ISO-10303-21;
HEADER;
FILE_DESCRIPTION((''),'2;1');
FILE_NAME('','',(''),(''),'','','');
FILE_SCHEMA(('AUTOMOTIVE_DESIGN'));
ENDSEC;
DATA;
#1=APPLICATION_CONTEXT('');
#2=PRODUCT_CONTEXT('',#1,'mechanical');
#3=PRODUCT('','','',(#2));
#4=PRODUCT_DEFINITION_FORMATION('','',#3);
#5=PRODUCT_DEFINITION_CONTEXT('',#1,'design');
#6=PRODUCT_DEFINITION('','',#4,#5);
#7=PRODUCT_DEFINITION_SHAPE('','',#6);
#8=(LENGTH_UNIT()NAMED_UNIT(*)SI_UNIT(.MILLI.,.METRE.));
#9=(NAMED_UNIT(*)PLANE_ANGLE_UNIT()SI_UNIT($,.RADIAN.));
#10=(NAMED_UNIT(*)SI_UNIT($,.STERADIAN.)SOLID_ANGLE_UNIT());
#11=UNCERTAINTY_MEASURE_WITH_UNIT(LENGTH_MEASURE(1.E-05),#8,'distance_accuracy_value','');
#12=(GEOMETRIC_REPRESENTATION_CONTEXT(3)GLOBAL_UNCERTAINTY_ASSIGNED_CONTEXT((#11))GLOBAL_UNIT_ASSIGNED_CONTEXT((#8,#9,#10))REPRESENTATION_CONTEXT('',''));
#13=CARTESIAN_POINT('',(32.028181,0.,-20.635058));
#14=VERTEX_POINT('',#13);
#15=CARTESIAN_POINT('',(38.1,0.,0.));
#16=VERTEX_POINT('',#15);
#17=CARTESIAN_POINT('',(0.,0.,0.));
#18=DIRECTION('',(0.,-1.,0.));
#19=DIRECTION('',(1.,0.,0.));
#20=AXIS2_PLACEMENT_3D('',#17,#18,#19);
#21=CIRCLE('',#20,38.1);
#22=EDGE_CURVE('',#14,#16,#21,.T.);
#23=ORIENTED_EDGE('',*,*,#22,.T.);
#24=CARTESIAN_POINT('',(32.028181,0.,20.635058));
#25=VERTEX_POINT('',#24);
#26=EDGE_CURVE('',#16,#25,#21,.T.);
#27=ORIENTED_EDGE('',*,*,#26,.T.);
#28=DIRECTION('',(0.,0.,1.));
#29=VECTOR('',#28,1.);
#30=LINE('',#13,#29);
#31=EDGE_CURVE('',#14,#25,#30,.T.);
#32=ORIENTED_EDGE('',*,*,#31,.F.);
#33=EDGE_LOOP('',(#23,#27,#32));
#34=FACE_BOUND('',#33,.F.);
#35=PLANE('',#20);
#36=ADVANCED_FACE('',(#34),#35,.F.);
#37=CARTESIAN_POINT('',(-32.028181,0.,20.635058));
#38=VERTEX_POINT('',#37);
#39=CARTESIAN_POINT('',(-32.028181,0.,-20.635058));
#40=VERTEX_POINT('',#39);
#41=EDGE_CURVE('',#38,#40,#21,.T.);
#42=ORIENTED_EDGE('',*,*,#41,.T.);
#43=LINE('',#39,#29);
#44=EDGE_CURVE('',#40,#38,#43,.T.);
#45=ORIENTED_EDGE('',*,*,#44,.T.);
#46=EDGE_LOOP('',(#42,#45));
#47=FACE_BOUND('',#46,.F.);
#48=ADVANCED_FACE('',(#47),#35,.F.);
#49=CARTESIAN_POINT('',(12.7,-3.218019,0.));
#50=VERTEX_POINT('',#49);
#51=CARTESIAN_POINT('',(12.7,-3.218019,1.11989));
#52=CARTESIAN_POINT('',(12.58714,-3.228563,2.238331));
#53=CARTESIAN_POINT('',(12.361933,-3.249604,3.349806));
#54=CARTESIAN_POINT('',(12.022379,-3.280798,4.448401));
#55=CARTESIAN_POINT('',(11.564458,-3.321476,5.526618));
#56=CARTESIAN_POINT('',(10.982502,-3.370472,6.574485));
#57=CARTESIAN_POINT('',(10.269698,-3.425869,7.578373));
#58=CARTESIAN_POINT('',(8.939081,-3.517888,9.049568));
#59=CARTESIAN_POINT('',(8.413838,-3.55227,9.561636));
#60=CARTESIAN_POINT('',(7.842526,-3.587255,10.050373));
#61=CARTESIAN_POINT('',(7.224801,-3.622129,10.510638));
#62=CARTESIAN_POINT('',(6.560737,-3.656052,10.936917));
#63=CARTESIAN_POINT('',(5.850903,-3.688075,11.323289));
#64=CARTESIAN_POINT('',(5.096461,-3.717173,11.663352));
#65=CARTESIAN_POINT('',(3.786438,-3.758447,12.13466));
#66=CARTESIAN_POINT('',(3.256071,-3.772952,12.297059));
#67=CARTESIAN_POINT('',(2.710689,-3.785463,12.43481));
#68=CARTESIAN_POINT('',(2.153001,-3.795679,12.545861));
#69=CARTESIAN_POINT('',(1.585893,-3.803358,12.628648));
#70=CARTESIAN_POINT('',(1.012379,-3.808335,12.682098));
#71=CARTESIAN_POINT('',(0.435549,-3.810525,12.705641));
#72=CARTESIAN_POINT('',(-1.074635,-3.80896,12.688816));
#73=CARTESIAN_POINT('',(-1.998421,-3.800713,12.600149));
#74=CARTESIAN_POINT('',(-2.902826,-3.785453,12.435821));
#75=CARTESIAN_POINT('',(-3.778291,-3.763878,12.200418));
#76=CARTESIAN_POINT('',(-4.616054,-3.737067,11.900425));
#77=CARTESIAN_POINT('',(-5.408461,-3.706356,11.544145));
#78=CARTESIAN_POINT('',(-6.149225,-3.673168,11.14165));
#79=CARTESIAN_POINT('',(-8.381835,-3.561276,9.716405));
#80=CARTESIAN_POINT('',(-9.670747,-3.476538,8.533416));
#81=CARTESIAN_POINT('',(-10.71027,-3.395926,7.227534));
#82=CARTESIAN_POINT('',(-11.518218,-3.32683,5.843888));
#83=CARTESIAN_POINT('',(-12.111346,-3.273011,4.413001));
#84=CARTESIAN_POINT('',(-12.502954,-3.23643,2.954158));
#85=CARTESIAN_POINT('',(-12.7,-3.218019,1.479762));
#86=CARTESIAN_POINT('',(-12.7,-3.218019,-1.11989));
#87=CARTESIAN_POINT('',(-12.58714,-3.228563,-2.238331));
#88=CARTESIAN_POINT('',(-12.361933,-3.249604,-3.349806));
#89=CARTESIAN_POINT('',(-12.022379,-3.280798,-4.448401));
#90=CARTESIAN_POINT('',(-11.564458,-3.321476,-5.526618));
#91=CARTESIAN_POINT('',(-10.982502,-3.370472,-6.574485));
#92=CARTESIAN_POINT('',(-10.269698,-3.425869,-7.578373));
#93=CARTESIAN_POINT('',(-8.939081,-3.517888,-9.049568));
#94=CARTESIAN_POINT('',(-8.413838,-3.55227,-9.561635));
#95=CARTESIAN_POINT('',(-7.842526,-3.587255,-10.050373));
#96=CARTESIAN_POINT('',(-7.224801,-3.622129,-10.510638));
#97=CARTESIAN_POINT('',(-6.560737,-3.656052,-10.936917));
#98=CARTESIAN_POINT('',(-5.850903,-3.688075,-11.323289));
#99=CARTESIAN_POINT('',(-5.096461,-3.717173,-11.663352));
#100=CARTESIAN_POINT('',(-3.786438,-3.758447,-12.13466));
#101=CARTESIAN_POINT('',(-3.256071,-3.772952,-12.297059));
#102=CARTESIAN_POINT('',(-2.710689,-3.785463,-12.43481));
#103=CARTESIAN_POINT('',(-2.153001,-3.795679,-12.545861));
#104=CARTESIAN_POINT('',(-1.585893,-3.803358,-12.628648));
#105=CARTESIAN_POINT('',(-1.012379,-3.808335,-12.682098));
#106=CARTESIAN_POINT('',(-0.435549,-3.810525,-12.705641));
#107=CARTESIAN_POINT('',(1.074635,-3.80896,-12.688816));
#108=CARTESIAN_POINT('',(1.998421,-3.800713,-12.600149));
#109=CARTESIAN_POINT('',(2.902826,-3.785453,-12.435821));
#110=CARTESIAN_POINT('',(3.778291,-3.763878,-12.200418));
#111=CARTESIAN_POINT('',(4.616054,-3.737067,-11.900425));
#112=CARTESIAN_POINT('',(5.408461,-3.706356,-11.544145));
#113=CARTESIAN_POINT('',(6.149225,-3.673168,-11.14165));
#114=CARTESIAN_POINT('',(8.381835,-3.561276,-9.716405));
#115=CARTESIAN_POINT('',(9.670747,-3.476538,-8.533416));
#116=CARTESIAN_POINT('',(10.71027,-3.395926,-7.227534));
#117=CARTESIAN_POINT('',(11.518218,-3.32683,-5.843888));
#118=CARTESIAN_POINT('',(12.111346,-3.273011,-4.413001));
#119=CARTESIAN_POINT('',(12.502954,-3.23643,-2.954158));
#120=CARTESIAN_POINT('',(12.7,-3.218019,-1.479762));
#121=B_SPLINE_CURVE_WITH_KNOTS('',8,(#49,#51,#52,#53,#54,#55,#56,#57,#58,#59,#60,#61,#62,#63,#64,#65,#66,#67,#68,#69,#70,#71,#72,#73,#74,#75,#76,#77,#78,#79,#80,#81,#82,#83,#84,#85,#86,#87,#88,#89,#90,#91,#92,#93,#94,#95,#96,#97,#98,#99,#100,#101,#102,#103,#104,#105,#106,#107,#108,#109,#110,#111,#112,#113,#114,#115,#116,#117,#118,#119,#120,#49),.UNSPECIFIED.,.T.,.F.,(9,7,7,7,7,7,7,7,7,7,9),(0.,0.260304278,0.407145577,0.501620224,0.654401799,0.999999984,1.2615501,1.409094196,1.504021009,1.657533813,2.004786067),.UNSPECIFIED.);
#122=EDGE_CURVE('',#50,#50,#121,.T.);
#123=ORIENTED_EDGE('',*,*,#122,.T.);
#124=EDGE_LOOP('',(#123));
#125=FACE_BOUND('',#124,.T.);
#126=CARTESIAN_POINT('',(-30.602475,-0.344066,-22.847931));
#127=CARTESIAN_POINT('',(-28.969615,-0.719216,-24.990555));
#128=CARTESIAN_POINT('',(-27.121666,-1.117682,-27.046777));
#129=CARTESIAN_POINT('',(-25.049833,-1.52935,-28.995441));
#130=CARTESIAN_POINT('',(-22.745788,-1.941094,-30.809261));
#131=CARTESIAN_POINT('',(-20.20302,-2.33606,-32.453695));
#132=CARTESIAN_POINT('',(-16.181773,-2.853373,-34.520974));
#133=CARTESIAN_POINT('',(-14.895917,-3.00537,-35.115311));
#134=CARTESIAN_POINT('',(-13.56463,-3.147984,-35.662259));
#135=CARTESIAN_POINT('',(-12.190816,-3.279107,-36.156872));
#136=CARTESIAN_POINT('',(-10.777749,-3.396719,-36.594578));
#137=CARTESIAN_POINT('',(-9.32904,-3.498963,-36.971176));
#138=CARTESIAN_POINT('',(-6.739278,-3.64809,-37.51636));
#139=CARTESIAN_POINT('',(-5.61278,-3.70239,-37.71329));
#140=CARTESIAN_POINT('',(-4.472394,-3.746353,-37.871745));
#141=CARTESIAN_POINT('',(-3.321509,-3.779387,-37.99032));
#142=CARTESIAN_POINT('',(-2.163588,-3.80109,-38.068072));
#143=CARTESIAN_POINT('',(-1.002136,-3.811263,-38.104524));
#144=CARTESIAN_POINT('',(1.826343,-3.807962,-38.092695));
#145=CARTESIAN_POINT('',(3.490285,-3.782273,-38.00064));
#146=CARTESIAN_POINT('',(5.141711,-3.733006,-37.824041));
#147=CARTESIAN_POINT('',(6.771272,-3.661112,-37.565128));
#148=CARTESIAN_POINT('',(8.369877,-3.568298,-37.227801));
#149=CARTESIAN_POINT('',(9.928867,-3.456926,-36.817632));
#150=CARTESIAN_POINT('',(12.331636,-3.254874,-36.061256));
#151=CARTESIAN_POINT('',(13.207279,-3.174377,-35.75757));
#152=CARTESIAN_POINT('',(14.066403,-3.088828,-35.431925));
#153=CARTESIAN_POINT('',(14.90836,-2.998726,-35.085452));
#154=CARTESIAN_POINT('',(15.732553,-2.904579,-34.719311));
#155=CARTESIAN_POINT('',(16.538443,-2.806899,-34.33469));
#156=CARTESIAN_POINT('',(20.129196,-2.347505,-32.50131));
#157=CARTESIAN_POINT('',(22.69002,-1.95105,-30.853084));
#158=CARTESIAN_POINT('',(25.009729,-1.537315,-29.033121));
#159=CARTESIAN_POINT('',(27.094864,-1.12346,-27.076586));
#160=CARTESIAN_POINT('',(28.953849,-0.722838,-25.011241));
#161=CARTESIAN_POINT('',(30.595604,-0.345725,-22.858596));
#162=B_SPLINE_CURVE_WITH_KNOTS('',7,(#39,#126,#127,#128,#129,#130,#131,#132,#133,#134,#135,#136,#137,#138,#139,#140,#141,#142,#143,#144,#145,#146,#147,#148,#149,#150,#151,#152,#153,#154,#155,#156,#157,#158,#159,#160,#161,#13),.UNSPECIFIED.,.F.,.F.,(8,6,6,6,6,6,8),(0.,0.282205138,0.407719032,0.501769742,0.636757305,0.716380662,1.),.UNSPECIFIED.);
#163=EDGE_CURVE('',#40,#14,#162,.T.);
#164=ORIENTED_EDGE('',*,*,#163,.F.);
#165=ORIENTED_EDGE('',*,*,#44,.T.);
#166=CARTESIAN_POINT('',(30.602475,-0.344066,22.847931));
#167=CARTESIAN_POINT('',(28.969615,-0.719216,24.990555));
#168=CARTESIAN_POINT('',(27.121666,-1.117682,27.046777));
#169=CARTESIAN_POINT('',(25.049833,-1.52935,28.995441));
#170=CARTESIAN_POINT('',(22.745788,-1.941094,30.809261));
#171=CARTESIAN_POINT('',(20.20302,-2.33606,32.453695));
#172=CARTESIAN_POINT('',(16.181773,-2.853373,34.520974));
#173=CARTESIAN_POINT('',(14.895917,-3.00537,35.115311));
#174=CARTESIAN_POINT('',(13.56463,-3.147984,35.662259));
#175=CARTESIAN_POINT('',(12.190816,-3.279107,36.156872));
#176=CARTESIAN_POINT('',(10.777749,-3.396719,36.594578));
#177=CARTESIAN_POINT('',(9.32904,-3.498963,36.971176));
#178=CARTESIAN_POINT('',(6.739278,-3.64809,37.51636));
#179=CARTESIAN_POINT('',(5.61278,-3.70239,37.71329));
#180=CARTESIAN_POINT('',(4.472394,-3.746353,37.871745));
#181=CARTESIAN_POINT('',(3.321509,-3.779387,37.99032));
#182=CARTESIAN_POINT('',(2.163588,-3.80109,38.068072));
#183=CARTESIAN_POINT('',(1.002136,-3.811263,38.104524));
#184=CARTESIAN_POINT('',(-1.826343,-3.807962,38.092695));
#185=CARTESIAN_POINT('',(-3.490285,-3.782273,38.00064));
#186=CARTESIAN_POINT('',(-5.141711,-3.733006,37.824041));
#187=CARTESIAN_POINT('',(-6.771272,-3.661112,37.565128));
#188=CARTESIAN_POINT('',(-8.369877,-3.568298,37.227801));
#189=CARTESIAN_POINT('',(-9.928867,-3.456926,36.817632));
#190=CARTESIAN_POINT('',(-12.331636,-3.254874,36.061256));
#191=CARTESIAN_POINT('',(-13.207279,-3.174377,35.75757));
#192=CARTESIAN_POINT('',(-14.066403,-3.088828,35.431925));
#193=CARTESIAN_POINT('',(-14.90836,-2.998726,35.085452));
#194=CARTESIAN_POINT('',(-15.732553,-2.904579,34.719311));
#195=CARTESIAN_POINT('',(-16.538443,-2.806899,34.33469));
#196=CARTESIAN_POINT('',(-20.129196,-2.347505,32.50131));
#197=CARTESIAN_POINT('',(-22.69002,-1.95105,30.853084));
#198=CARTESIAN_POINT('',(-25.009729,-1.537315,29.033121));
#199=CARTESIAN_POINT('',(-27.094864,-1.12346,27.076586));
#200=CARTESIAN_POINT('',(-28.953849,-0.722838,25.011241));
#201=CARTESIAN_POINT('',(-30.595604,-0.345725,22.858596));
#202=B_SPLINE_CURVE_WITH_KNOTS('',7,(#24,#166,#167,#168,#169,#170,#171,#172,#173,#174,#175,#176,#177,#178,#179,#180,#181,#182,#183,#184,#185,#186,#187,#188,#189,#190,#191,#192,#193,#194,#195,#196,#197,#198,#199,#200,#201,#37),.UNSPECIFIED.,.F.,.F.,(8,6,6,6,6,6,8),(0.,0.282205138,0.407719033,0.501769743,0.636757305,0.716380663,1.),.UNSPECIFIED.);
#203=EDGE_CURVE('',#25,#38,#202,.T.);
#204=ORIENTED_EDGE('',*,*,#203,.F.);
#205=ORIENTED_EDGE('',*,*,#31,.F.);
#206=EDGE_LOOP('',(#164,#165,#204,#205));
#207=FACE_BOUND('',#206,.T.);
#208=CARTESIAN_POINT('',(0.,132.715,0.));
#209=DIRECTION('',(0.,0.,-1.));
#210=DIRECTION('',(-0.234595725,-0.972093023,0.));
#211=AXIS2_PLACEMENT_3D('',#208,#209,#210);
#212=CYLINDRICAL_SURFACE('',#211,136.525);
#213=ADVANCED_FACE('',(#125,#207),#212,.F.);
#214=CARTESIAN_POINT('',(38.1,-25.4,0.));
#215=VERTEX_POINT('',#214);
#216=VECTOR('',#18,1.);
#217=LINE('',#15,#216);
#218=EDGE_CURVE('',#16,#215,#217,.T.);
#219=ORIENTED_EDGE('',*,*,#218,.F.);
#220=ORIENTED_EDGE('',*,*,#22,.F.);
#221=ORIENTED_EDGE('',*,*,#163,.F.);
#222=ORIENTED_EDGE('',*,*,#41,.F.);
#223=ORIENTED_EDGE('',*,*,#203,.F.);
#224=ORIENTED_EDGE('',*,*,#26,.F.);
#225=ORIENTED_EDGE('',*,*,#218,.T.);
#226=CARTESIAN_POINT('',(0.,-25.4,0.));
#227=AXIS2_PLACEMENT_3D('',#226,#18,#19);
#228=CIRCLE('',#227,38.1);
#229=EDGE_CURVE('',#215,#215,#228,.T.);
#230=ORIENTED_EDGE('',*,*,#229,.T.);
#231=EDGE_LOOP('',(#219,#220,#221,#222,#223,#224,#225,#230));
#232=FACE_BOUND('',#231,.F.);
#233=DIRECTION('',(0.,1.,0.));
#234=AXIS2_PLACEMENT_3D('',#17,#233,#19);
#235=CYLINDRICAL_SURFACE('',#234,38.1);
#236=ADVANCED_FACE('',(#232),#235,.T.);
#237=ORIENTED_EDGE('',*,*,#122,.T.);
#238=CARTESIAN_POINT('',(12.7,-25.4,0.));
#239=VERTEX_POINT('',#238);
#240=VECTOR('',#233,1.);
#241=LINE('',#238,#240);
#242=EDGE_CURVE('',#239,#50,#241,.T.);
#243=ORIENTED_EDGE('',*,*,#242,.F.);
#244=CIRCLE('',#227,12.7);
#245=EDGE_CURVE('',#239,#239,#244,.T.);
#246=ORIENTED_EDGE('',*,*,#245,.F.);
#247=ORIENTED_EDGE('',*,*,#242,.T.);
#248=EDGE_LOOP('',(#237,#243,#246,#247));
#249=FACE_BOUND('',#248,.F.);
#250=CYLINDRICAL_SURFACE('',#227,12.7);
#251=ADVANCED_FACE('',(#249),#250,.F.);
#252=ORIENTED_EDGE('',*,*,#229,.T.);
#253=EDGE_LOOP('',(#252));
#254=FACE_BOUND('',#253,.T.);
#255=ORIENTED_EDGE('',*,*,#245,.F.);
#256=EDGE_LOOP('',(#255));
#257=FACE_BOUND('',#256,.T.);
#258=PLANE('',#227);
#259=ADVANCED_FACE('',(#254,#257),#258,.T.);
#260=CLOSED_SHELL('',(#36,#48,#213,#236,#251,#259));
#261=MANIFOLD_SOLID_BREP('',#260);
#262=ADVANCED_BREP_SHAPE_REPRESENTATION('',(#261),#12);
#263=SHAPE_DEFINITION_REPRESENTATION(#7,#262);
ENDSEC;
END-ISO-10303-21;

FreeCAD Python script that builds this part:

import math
import FreeCAD as App
import Part
import Sketcher
Q = App.Units.Quantity

doc = App.newDocument("Part")
body = doc.addObject("PartDesign::Body", "Body")

sketch1 = body.newObject("Sketcher::SketchObject", "Sketch")
sketch1.AttachmentSupport = (doc.getObject("XZ_Plane"), [""])
sketch1.MapMode = "FlatFace"
sketch1.addGeometry(Part.Circle(App.Vector(0, 0, 0), App.Vector(0, 0, 1), 38), False)
sketch1.addConstraint([
    Sketcher.Constraint("Coincident", 0, 3, -1, 1),
    Sketcher.Constraint("Diameter", 0, Q("3 in")),
])
pad1 = body.newObject("PartDesign::Pad", "Pad")
pad1.Profile = sketch1
pad1.Length = Q("1 in")

sketch2 = body.newObject("Sketcher::SketchObject", "Sketch001")
sketch2.AttachmentSupport = (doc.getObject("XZ_Plane"), [""])
sketch2.MapMode = "FlatFace"
sketch2.AttachmentOffset = App.Placement(App.Vector(0, 0, 1 * 25.4), App.Rotation())
sketch2.addGeometry(Part.Circle(App.Vector(0, 0, 0), App.Vector(0, 0, 1), 13), False)
sketch2.addConstraint([
    Sketcher.Constraint("Coincident", 0, 3, -1, 1),
    Sketcher.Constraint("Diameter", 0, Q("1 in")),
])
pocket1 = body.newObject("PartDesign::Pocket", "Pocket")
pocket1.Profile = sketch2
pocket1.Type = "ThroughAll"

sketch3 = body.newObject("Sketcher::SketchObject", "Sketch002")
sketch3.AttachmentSupport = (doc.getObject("XY_Plane"), [""])
sketch3.MapMode = "FlatFace"
sketch3.addGeometry([
    Part.LineSegment(App.Vector(32, 0, 0), App.Vector(-32, 0, 0)),
    Part.ArcOfCircle(Part.Circle(App.Vector(0, 133, 0), App.Vector(0, 0, 1), 137), math.radians(-104), math.radians(-76)),
], False)
sketch3.addConstraint([
    Sketcher.Constraint("Coincident", 0, 1, 1, 2),
    Sketcher.Constraint("Coincident", 1, 1, 0, 2),
    Sketcher.Constraint("Horizontal", 0),
    Sketcher.Constraint("Symmetric", 0, 1, 1, 1, -1, 1),
    Sketcher.Constraint("Radius", 1, Q("5.375 in")),
    Sketcher.Constraint("DistanceY", -1, 1, 1, 3, Q("5.225 in")),
])
pocket2 = body.newObject("PartDesign::Pocket", "Pocket001")
pocket2.Profile = sketch3
pocket2.Type = "ThroughAll"
pocket2.Midplane = True

doc.recompute()
